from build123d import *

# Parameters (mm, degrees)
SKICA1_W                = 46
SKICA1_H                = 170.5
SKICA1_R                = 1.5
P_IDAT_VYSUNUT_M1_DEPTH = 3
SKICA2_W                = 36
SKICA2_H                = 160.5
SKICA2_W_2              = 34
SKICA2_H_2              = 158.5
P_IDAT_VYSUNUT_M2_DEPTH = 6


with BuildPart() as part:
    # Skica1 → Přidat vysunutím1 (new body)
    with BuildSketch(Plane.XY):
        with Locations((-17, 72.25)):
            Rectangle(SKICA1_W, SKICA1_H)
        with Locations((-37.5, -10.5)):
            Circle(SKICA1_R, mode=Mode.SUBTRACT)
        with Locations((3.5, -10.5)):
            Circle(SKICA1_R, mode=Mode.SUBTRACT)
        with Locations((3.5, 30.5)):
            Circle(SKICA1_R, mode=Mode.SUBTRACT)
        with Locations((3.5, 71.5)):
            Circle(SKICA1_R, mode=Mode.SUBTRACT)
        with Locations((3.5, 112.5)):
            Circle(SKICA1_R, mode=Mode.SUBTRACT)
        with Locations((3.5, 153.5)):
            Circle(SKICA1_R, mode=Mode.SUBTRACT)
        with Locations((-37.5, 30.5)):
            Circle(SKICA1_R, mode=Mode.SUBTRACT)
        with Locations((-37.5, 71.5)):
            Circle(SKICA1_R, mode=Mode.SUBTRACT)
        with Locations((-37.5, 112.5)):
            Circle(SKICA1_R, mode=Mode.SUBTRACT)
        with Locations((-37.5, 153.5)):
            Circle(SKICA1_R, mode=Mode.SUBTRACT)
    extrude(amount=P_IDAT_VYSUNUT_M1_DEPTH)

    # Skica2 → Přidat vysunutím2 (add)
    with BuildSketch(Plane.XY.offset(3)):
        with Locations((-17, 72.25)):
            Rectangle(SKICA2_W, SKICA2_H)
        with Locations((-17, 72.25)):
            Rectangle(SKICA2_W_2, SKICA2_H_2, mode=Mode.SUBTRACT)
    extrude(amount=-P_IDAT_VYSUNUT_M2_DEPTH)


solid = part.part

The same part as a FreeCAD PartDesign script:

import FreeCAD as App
import Part
import Sketcher
from FreeCAD import Vector
Q = App.Units.Quantity


def add_polygon(sketch, points):
    """Adds a closed chain of lines whose ends are joined by coincident constraints."""
    first, n = sketch.GeometryCount, len(points)
    for a, b in zip(points, points[1:] + points[:1]):
        sketch.addGeometry(Part.LineSegment(App.Vector(*a, 0), App.Vector(*b, 0)), False)
    for i in range(n):
        sketch.addConstraint(Sketcher.Constraint("Coincident", first + i, 2, first + (i + 1) % n, 1))

doc = App.newDocument("Part")
params = doc.addObject("Spreadsheet::Sheet", "Params")
for row, (alias, value) in enumerate([
    ("sketch1_diameter", "3 mm"),
    ("sketch1_width", "46 mm"),
    ("sketch1_height", "170.5 mm"),
    ("pad1_length", "3 mm"),
    ("sketch2_width", "36 mm"),
    ("sketch2_width2", "34 mm"),
    ("sketch2_height", "160.5 mm"),
    ("sketch2_height2", "158.5 mm"),
    ("pad2_length", "6 mm"),
], start=1):
    params.set(f"A{row}", alias)
    params.set(f"B{row}", "=" + value)
    params.setAlias(f"B{row}", alias)

body = doc.addObject("PartDesign::Body", "Body")

# Sketch on XY plane
sketch1 = body.newObject("Sketcher::SketchObject", "Sketch")
sketch1.AttachmentSupport = (doc.getObject("XY_Plane"), [""])
sketch1.MapMode = "FlatFace"
add_polygon(sketch1, [(-40, 157.5), (-40, -13), (6, -13), (6, 157.5)])  # lines 0-3
sketch1.addGeometry(Part.Circle(Vector(-37.5, -10.5, 0), Vector(0, 0, 1), 1.5), False)  # 4
sketch1.addGeometry(Part.Circle(Vector(-37.5, 30.5, 0), Vector(0, 0, 1), 1.5), False)  # 5
sketch1.addGeometry(Part.Circle(Vector(3.5, -10.5, 0), Vector(0, 0, 1), 1.5), False)  # 6
sketch1.addGeometry(Part.Circle(Vector(3.5, 30.5, 0), Vector(0, 0, 1), 1.5), False)  # 7
sketch1.addGeometry(Part.Circle(Vector(-37.5, 71.5, 0), Vector(0, 0, 1), 1.5), False)  # 8
sketch1.addGeometry(Part.Circle(Vector(-37.5, 112.5, 0), Vector(0, 0, 1), 1.5), False)  # 9
sketch1.addGeometry(Part.Circle(Vector(-37.5, 153.5, 0), Vector(0, 0, 1), 1.5), False)  # 10
sketch1.addGeometry(Part.Circle(Vector(3.5, 71.5, 0), Vector(0, 0, 1), 1.5), False)  # 11
sketch1.addGeometry(Part.Circle(Vector(3.5, 112.5, 0), Vector(0, 0, 1), 1.5), False)  # 12
sketch1.addGeometry(Part.Circle(Vector(3.5, 153.5, 0), Vector(0, 0, 1), 1.5), False)  # 13
sketch1.addConstraint(Sketcher.Constraint("Vertical", 0))
sketch1.addConstraint(Sketcher.Constraint("Horizontal", 1))
sketch1.addConstraint(Sketcher.Constraint("Vertical", 2))
sketch1.addConstraint(Sketcher.Constraint("Horizontal", 3))
sketch1.addConstraint(Sketcher.Constraint("Equal", 4, 5))
sketch1.addConstraint(Sketcher.Constraint("Equal", 5, 6))
sketch1.addConstraint(Sketcher.Constraint("Equal", 6, 7))
sketch1.addConstraint(Sketcher.Constraint("Equal", 7, 8))
sketch1.addConstraint(Sketcher.Constraint("Equal", 8, 9))
sketch1.addConstraint(Sketcher.Constraint("Equal", 9, 10))
sketch1.addConstraint(Sketcher.Constraint("Equal", 10, 11))
sketch1.addConstraint(Sketcher.Constraint("Equal", 11, 12))
sketch1.addConstraint(Sketcher.Constraint("Equal", 12, 13))
sketch1.addConstraint(Sketcher.Constraint("Horizontal", 4, 3, 6, 3))
sketch1.addConstraint(Sketcher.Constraint("Horizontal", 5, 3, 7, 3))
sketch1.addConstraint(Sketcher.Constraint("Horizontal", 8, 3, 11, 3))
sketch1.addConstraint(Sketcher.Constraint("Horizontal", 9, 3, 12, 3))
sketch1.addConstraint(Sketcher.Constraint("Horizontal", 10, 3, 13, 3))
sketch1.addConstraint(Sketcher.Constraint("Vertical", 4, 3, 5, 3))
sketch1.addConstraint(Sketcher.Constraint("Vertical", 6, 3, 7, 3))
sketch1.addConstraint(Sketcher.Constraint("Vertical", 5, 3, 8, 3))
sketch1.addConstraint(Sketcher.Constraint("Vertical", 8, 3, 9, 3))
sketch1.addConstraint(Sketcher.Constraint("Vertical", 9, 3, 10, 3))
sketch1.addConstraint(Sketcher.Constraint("Vertical", 7, 3, 11, 3))
sketch1.addConstraint(Sketcher.Constraint("Vertical", 11, 3, 12, 3))
sketch1.addConstraint(Sketcher.Constraint("Vertical", 12, 3, 13, 3))
sketch1.addConstraint(Sketcher.Constraint("Diameter", 4, Q("3 mm")))
sketch1.addConstraint(Sketcher.Constraint("DistanceX", 1, 1, 1, 2, Q("46 mm")))
sketch1.addConstraint(Sketcher.Constraint("DistanceY", 0, 2, 0, 1, Q("170.5 mm")))
sketch1.addConstraint(Sketcher.Constraint("DistanceX", 0, 2, -1, 1, Q("40 mm")))
sketch1.addConstraint(Sketcher.Constraint("DistanceY", 0, 2, -1, 1, Q("13 mm")))
sketch1.addConstraint(Sketcher.Constraint("DistanceY", 4, 3, 5, 3, Q("41 mm")))
sketch1.addConstraint(Sketcher.Constraint("DistanceX", 4, 3, 6, 3, Q("41 mm")))
sketch1.addConstraint(Sketcher.Constraint("DistanceY", 5, 3, 8, 3, Q("41 mm")))
sketch1.addConstraint(Sketcher.Constraint("DistanceY", 8, 3, 9, 3, Q("41 mm")))
sketch1.addConstraint(Sketcher.Constraint("DistanceY", 9, 3, 10, 3, Q("41 mm")))
sketch1.addConstraint(Sketcher.Constraint("DistanceY", 13, 3, 2, 2, Q("4 mm")))
sketch1.addConstraint(Sketcher.Constraint("DistanceX", 4, 3, -1, 1, Q("37.5 mm")))
sketch1.setExpression("Constraints[30]", "Params.sketch1_diameter")
sketch1.setExpression("Constraints[31]", "Params.sketch1_width")
sketch1.setExpression("Constraints[32]", "Params.sketch1_height")
pad1 = body.newObject("PartDesign::Pad", "Pad")
pad1.Profile = sketch1
pad1.setExpression("Length", "Params.pad1_length")

# Sketch on XY plane
sketch2 = body.newObject("Sketcher::SketchObject", "Sketch001")
sketch2.AttachmentSupport = (doc.getObject("XY_Plane"), [""])
sketch2.MapMode = "FlatFace"
sketch2.AttachmentOffset = App.Placement(Vector(0, 0, 3), App.Rotation())
add_polygon(sketch2, [(-35, 152.5), (-35, -8), (1, -8), (1, 152.5)])  # lines 0-3
add_polygon(sketch2, [(0, -7), (-34, -7), (-34, 151.5), (0, 151.5)])  # lines 4-7
sketch2.addConstraint(Sketcher.Constraint("Vertical", 0))
sketch2.addConstraint(Sketcher.Constraint("Horizontal", 1))
sketch2.addConstraint(Sketcher.Constraint("Vertical", 2))
sketch2.addConstraint(Sketcher.Constraint("Horizontal", 3))
sketch2.addConstraint(Sketcher.Constraint("Horizontal", 4))
sketch2.addConstraint(Sketcher.Constraint("Vertical", 5))
sketch2.addConstraint(Sketcher.Constraint("Horizontal", 6))
sketch2.addConstraint(Sketcher.Constraint("Vertical", 7))
sketch2.addConstraint(Sketcher.Constraint("PointOnObject", 6, 2, -2))
sketch2.addConstraint(Sketcher.Constraint("DistanceX", 1, 1, 1, 2, Q("36 mm")))
sketch2.addConstraint(Sketcher.Constraint("DistanceX", 4, 2, 4, 1, Q("34 mm")))
sketch2.addConstraint(Sketcher.Constraint("DistanceY", 0, 2, 0, 1, Q("160.5 mm")))
sketch2.addConstraint(Sketcher.Constraint("DistanceY", 5, 1, 5, 2, Q("158.5 mm")))
sketch2.addConstraint(Sketcher.Constraint("DistanceX", 0, 2, -1, 1, Q("35 mm")))
sketch2.addConstraint(Sketcher.Constraint("DistanceY", 0, 2, -1, 1, Q("8 mm")))
sketch2.addConstraint(Sketcher.Constraint("DistanceY", 4, 2, -1, 1, Q("7 mm")))
sketch2.setExpression("Constraints[17]", "Params.sketch2_width")
sketch2.setExpression("Constraints[18]", "Params.sketch2_width2")
sketch2.setExpression("Constraints[19]", "Params.sketch2_height")
sketch2.setExpression("Constraints[20]", "Params.sketch2_height2")
pad2 = body.newObject("PartDesign::Pad", "Pad001")
pad2.Profile = sketch2
pad2.setExpression("Length", "Params.pad2_length")
pad2.Reversed = True

doc.recompute()
